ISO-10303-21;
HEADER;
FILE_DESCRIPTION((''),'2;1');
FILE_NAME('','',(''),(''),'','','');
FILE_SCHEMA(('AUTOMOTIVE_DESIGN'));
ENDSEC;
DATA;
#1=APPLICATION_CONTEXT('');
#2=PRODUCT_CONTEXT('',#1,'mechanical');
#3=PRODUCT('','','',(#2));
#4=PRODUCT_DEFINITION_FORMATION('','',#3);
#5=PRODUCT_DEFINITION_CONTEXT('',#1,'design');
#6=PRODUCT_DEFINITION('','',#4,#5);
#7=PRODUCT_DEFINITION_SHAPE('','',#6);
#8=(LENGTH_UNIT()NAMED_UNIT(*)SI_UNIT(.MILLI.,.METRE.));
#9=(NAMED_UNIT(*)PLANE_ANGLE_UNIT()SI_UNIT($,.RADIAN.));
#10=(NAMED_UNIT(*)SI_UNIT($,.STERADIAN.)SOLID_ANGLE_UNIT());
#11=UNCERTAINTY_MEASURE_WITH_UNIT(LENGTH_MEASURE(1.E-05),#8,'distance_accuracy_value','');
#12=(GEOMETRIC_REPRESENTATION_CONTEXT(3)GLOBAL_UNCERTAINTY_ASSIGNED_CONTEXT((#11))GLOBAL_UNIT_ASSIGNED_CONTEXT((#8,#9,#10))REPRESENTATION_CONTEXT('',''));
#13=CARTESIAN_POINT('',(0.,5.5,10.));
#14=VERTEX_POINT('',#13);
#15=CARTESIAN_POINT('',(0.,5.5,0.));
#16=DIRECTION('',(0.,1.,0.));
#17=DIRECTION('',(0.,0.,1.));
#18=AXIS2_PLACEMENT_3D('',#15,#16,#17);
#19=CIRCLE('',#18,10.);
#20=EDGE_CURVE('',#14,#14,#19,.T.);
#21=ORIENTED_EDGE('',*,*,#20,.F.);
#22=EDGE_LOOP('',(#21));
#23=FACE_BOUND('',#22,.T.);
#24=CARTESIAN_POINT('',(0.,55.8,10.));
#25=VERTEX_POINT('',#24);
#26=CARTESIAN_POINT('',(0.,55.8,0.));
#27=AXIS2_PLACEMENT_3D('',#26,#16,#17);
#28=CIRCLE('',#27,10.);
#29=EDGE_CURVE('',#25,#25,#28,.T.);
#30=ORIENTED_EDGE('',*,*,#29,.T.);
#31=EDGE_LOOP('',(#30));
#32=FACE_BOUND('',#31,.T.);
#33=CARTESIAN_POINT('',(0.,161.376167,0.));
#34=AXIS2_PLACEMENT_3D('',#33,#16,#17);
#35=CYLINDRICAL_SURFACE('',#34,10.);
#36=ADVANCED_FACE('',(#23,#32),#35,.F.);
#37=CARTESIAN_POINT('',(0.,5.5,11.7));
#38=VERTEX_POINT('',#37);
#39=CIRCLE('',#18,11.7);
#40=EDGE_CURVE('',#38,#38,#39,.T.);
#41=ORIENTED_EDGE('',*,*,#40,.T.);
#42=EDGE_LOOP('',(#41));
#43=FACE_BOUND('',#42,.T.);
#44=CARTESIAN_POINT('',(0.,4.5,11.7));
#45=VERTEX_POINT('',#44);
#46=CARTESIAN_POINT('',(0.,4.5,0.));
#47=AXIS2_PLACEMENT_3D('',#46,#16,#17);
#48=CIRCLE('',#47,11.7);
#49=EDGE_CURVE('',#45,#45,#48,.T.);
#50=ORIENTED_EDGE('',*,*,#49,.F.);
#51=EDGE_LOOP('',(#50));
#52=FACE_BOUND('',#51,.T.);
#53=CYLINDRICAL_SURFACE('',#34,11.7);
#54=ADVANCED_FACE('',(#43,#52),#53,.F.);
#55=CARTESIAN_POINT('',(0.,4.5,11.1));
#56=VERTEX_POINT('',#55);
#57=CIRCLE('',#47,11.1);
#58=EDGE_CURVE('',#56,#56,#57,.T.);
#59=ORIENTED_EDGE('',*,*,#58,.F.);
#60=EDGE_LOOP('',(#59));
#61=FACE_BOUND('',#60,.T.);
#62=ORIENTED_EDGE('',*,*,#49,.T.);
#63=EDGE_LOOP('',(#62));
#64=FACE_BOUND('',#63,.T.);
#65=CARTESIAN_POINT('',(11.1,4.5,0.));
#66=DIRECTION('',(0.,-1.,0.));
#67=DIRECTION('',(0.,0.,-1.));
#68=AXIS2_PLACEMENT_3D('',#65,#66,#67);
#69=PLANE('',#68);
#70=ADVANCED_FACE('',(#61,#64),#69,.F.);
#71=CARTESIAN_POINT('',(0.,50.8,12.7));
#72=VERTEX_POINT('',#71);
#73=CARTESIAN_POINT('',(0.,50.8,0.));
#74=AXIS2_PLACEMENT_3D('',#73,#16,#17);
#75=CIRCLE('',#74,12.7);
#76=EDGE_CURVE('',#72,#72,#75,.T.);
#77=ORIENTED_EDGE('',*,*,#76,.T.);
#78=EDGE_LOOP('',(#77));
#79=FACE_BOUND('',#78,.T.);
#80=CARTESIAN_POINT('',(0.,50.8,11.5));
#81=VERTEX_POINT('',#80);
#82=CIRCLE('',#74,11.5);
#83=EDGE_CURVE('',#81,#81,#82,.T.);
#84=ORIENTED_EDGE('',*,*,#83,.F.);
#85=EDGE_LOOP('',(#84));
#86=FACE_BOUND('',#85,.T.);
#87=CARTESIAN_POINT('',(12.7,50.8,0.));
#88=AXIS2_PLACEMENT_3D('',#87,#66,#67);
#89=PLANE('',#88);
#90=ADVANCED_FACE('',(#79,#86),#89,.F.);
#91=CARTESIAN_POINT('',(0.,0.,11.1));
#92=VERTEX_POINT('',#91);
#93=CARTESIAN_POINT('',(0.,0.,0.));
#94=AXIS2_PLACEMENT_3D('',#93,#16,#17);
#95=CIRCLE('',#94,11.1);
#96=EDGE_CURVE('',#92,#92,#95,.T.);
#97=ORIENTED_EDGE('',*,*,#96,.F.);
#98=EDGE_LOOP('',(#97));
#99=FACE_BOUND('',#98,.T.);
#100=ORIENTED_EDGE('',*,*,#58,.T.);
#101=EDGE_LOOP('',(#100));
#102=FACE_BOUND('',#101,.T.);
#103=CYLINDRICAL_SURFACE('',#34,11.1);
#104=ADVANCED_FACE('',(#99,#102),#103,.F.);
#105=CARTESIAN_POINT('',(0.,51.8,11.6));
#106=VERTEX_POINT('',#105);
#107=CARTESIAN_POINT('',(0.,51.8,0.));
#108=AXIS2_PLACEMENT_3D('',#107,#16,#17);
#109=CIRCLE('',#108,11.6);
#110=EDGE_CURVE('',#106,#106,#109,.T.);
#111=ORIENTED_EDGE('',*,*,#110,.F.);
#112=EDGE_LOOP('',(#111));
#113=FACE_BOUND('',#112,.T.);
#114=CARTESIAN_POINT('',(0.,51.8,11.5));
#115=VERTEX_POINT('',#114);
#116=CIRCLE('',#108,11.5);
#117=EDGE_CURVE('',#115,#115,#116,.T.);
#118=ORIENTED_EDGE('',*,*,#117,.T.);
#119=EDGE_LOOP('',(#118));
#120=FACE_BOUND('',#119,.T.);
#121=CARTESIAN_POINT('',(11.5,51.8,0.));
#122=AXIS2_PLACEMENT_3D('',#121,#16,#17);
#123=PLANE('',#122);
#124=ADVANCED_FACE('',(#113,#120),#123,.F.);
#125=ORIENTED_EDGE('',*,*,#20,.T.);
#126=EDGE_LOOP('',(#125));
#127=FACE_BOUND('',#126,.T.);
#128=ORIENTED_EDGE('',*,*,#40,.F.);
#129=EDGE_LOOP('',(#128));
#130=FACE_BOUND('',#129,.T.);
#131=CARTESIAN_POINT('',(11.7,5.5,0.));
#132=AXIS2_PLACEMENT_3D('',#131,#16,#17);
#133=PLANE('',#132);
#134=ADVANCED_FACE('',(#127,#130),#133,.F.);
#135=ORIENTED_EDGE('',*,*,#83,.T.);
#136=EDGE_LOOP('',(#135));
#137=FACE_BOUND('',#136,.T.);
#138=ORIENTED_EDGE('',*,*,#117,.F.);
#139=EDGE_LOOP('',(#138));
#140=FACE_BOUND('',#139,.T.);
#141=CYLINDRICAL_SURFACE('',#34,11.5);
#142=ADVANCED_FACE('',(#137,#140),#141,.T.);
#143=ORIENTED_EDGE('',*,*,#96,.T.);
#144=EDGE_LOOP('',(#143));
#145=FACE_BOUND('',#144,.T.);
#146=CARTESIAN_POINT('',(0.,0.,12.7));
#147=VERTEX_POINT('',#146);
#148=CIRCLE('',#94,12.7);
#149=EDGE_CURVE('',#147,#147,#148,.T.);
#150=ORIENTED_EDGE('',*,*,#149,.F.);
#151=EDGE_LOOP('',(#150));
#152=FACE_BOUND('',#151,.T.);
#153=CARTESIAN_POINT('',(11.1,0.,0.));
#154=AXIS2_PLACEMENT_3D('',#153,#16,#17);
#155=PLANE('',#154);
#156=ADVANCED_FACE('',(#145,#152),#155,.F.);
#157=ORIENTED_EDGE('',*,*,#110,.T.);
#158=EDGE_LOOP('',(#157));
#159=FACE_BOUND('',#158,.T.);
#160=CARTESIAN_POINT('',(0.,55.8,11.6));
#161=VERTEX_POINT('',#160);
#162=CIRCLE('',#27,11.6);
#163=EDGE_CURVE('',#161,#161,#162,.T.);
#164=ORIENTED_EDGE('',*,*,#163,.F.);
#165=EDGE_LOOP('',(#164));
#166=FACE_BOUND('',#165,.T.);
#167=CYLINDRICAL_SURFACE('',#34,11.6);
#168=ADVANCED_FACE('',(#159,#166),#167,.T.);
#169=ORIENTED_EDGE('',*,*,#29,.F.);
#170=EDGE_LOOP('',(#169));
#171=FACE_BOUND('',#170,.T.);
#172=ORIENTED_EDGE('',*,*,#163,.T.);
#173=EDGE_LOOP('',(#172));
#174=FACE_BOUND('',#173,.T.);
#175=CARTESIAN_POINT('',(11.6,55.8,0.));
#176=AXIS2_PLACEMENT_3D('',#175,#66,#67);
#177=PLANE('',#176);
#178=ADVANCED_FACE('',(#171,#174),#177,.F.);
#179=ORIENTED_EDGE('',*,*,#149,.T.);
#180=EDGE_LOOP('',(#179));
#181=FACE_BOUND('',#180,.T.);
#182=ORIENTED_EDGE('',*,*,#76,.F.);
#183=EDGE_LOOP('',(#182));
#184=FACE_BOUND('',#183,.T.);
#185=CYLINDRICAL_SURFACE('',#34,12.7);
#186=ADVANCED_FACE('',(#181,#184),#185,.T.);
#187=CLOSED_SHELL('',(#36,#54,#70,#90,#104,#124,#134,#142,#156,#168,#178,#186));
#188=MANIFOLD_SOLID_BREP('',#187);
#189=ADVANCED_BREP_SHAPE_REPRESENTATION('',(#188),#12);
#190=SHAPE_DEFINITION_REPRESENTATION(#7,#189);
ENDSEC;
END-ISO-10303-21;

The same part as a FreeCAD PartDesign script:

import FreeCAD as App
import Part
import Sketcher
Q = App.Units.Quantity

doc = App.newDocument("Part")
params = doc.addObject("Spreadsheet::Sheet", "Params")
for row, (alias, value) in enumerate([
    ("sketch1_height", "1 mm"),
    ("sketch1_height2", "4 mm"),
    ("sketch1_width", "1.2 mm"),
    ("sketch1_width2", "0.1 mm"),
    ("sketch1_width3", "1.6 mm"),
    ("revolution_angle", "360 deg"),
], start=1):
    params.set(f"A{row}", alias)
    params.set(f"B{row}", "=" + value)
    params.setAlias(f"B{row}", alias)

body = doc.addObject("PartDesign::Body", "Body")

# Sketch on XY plane
sketch1 = doc.addObject("Sketcher::SketchObject", "Sketch")
body.addObject(sketch1)
sketch1.AttachmentSupport = (doc.XY_Plane, [""])
sketch1.MapMode = "FlatFace"
sketch1.addGeometry(Part.LineSegment(App.Vector(12.7, 0, 0), App.Vector(12.7, 50.8, 0)), False)
sketch1.addGeometry(Part.LineSegment(App.Vector(12.7, 50.8, 0), App.Vector(11.5, 50.8, 0)), False)
sketch1.addGeometry(Part.LineSegment(App.Vector(11.5, 50.8, 0), App.Vector(11.5, 51.8, 0)), False)
sketch1.addGeometry(Part.LineSegment(App.Vector(11.5, 51.8, 0), App.Vector(11.6, 51.8, 0)), False)
sketch1.addGeometry(Part.LineSegment(App.Vector(11.6, 51.8, 0), App.Vector(11.6, 55.8, 0)), False)
sketch1.addGeometry(Part.LineSegment(App.Vector(11.6, 55.8, 0), App.Vector(10, 55.8, 0)), False)
sketch1.addGeometry(Part.LineSegment(App.Vector(10, 55.8, 0), App.Vector(10, 5.5, 0)), False)
sketch1.addGeometry(Part.LineSegment(App.Vector(10, 5.5, 0), App.Vector(11.7, 5.5, 0)), False)
sketch1.addGeometry(Part.LineSegment(App.Vector(11.7, 5.5, 0), App.Vector(11.7, 4.5, 0)), False)
sketch1.addGeometry(Part.LineSegment(App.Vector(11.7, 4.5, 0), App.Vector(11.1, 4.5, 0)), False)
sketch1.addGeometry(Part.LineSegment(App.Vector(11.1, 4.5, 0), App.Vector(11.1, 0, 0)), False)
sketch1.addGeometry(Part.LineSegment(App.Vector(11.1, 0, 0), App.Vector(12.7, 0, 0)), False)
sketch1.addConstraint(Sketcher.Constraint("Coincident", 0, 2, 1, 1))
sketch1.addConstraint(Sketcher.Constraint("Coincident", 1, 2, 2, 1))
sketch1.addConstraint(Sketcher.Constraint("Coincident", 2, 2, 3, 1))
sketch1.addConstraint(Sketcher.Constraint("Coincident", 3, 2, 4, 1))
sketch1.addConstraint(Sketcher.Constraint("Coincident", 4, 2, 5, 1))
sketch1.addConstraint(Sketcher.Constraint("Coincident", 5, 2, 6, 1))
sketch1.addConstraint(Sketcher.Constraint("Coincident", 6, 2, 7, 1))
sketch1.addConstraint(Sketcher.Constraint("Coincident", 7, 2, 8, 1))
sketch1.addConstraint(Sketcher.Constraint("Coincident", 8, 2, 9, 1))
sketch1.addConstraint(Sketcher.Constraint("Coincident", 9, 2, 10, 1))
sketch1.addConstraint(Sketcher.Constraint("Coincident", 10, 2, 11, 1))
sketch1.addConstraint(Sketcher.Constraint("Coincident", 11, 2, 0, 1))
sketch1.addConstraint(Sketcher.Constraint("Vertical", 0))
sketch1.addConstraint(Sketcher.Constraint("Horizontal", 1))
sketch1.addConstraint(Sketcher.Constraint("Vertical", 2))
sketch1.addConstraint(Sketcher.Constraint("Horizontal", 3))
sketch1.addConstraint(Sketcher.Constraint("Vertical", 4))
sketch1.addConstraint(Sketcher.Constraint("Horizontal", 5))
sketch1.addConstraint(Sketcher.Constraint("Vertical", 6))
sketch1.addConstraint(Sketcher.Constraint("Horizontal", 7))
sketch1.addConstraint(Sketcher.Constraint("Vertical", 8))
sketch1.addConstraint(Sketcher.Constraint("Horizontal", 9))
sketch1.addConstraint(Sketcher.Constraint("Vertical", 10))
sketch1.addConstraint(Sketcher.Constraint("Horizontal", 11))
sketch1.addConstraint(Sketcher.Constraint("PointOnObject", 10, 2, -1))
sketch1.addConstraint(Sketcher.Constraint("Equal", 5, 11))
sketch1.addConstraint(Sketcher.Constraint("Equal", 2, 8))
sketch1.addConstraint(Sketcher.Constraint("DistanceY", 2, 1, 2, 2, Q("1 mm")))
sketch1.addConstraint(Sketcher.Constraint("DistanceY", 4, 1, 4, 2, Q("4 mm")))
sketch1.addConstraint(Sketcher.Constraint("DistanceX", 1, 2, 1, 1, Q("1.2 mm")))
sketch1.addConstraint(Sketcher.Constraint("DistanceX", 3, 1, 3, 2, Q("0.1 mm")))
sketch1.addConstraint(Sketcher.Constraint("DistanceX", 5, 2, 5, 1, Q("1.6 mm")))
sketch1.addConstraint(Sketcher.Constraint("DistanceX", 7, 1, 7, 2, Q("1.7 mm")))
sketch1.addConstraint(Sketcher.Constraint("DistanceY", 0, 1, 0, 2, Q("50.8 mm")))
sketch1.addConstraint(Sketcher.Constraint("DistanceY", 6, 2, 6, 1, Q("50.3 mm")))
sketch1.addConstraint(Sketcher.Constraint("DistanceX", -1, 1, 5, 2, Q("10 mm")))
sketch1.setExpression("Constraints[27]", "Params.sketch1_height")
sketch1.setExpression("Constraints[28]", "Params.sketch1_height2")
sketch1.setExpression("Constraints[29]", "Params.sketch1_width")
sketch1.setExpression("Constraints[30]", "Params.sketch1_width2")
sketch1.setExpression("Constraints[31]", "Params.sketch1_width3")
revolution = doc.addObject("PartDesign::Revolution", "Revolution")
body.addObject(revolution)
revolution.Profile = sketch1
revolution.ReferenceAxis = (sketch1, ["V_Axis"])
revolution.setExpression("Angle", "Params.revolution_angle")

doc.recompute()
